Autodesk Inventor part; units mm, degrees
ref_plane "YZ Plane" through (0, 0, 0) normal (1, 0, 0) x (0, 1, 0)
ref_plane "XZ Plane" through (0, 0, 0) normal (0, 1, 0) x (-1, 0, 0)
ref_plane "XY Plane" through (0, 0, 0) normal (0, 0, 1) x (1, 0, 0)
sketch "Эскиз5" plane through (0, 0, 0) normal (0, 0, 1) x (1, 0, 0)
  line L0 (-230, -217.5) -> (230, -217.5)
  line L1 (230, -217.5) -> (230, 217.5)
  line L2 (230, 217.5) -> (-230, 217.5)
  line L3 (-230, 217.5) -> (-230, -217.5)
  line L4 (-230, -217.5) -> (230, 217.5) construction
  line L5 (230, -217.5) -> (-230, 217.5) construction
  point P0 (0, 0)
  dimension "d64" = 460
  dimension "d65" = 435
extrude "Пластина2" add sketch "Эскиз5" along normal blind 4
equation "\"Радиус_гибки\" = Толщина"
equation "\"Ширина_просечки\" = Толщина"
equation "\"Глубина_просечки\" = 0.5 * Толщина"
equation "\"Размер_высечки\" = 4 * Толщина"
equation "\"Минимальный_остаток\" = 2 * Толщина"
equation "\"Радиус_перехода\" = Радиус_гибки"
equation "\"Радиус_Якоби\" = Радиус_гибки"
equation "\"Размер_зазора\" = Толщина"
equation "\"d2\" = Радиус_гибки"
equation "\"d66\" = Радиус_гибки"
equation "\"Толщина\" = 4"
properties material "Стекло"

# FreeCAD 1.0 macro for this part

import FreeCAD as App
import Part
import Sketcher

V = App.Vector


def add_polygon(sketch, points):
    """Adds a closed chain of lines whose ends are joined by coincident constraints."""
    first, n = sketch.GeometryCount, len(points)
    for a, b in zip(points, points[1:] + points[:1]):
        sketch.addGeometry(Part.LineSegment(App.Vector(*a, 0), App.Vector(*b, 0)), False)
    for i in range(n):
        sketch.addConstraint(Sketcher.Constraint("Coincident", first + i, 2, first + (i + 1) % n, 1))

doc = App.newDocument("Part")
body = doc.addObject("PartDesign::Body", "Body")

# Sketch on XY plane
sketch1 = doc.addObject("Sketcher::SketchObject", "Sketch")
body.addObject(sketch1)
sketch1.AttachmentSupport = (doc.XY_Plane, [""])
sketch1.MapMode = "FlatFace"
add_polygon(sketch1, [(-230, 218), (-230, -218), (230, -218), (230, 218)])  # lines 0-3
sketch1.addConstraint([
    Sketcher.Constraint("Vertical", 0),
    Sketcher.Constraint("Horizontal", 1),
    Sketcher.Constraint("Vertical", 2),
    Sketcher.Constraint("Horizontal", 3),
    Sketcher.Constraint("Symmetric", 0, 2, 2, 2, -1, 1),
    Sketcher.Constraint("DistanceX", 1, 1, 1, 2, 460.0),
    Sketcher.Constraint("DistanceY", 0, 2, 0, 1, 435.0),
])
pad1 = doc.addObject("PartDesign::Pad", "Pad")
body.addObject(pad1)
pad1.Profile = sketch1
pad1.Length = 4

doc.recompute()
